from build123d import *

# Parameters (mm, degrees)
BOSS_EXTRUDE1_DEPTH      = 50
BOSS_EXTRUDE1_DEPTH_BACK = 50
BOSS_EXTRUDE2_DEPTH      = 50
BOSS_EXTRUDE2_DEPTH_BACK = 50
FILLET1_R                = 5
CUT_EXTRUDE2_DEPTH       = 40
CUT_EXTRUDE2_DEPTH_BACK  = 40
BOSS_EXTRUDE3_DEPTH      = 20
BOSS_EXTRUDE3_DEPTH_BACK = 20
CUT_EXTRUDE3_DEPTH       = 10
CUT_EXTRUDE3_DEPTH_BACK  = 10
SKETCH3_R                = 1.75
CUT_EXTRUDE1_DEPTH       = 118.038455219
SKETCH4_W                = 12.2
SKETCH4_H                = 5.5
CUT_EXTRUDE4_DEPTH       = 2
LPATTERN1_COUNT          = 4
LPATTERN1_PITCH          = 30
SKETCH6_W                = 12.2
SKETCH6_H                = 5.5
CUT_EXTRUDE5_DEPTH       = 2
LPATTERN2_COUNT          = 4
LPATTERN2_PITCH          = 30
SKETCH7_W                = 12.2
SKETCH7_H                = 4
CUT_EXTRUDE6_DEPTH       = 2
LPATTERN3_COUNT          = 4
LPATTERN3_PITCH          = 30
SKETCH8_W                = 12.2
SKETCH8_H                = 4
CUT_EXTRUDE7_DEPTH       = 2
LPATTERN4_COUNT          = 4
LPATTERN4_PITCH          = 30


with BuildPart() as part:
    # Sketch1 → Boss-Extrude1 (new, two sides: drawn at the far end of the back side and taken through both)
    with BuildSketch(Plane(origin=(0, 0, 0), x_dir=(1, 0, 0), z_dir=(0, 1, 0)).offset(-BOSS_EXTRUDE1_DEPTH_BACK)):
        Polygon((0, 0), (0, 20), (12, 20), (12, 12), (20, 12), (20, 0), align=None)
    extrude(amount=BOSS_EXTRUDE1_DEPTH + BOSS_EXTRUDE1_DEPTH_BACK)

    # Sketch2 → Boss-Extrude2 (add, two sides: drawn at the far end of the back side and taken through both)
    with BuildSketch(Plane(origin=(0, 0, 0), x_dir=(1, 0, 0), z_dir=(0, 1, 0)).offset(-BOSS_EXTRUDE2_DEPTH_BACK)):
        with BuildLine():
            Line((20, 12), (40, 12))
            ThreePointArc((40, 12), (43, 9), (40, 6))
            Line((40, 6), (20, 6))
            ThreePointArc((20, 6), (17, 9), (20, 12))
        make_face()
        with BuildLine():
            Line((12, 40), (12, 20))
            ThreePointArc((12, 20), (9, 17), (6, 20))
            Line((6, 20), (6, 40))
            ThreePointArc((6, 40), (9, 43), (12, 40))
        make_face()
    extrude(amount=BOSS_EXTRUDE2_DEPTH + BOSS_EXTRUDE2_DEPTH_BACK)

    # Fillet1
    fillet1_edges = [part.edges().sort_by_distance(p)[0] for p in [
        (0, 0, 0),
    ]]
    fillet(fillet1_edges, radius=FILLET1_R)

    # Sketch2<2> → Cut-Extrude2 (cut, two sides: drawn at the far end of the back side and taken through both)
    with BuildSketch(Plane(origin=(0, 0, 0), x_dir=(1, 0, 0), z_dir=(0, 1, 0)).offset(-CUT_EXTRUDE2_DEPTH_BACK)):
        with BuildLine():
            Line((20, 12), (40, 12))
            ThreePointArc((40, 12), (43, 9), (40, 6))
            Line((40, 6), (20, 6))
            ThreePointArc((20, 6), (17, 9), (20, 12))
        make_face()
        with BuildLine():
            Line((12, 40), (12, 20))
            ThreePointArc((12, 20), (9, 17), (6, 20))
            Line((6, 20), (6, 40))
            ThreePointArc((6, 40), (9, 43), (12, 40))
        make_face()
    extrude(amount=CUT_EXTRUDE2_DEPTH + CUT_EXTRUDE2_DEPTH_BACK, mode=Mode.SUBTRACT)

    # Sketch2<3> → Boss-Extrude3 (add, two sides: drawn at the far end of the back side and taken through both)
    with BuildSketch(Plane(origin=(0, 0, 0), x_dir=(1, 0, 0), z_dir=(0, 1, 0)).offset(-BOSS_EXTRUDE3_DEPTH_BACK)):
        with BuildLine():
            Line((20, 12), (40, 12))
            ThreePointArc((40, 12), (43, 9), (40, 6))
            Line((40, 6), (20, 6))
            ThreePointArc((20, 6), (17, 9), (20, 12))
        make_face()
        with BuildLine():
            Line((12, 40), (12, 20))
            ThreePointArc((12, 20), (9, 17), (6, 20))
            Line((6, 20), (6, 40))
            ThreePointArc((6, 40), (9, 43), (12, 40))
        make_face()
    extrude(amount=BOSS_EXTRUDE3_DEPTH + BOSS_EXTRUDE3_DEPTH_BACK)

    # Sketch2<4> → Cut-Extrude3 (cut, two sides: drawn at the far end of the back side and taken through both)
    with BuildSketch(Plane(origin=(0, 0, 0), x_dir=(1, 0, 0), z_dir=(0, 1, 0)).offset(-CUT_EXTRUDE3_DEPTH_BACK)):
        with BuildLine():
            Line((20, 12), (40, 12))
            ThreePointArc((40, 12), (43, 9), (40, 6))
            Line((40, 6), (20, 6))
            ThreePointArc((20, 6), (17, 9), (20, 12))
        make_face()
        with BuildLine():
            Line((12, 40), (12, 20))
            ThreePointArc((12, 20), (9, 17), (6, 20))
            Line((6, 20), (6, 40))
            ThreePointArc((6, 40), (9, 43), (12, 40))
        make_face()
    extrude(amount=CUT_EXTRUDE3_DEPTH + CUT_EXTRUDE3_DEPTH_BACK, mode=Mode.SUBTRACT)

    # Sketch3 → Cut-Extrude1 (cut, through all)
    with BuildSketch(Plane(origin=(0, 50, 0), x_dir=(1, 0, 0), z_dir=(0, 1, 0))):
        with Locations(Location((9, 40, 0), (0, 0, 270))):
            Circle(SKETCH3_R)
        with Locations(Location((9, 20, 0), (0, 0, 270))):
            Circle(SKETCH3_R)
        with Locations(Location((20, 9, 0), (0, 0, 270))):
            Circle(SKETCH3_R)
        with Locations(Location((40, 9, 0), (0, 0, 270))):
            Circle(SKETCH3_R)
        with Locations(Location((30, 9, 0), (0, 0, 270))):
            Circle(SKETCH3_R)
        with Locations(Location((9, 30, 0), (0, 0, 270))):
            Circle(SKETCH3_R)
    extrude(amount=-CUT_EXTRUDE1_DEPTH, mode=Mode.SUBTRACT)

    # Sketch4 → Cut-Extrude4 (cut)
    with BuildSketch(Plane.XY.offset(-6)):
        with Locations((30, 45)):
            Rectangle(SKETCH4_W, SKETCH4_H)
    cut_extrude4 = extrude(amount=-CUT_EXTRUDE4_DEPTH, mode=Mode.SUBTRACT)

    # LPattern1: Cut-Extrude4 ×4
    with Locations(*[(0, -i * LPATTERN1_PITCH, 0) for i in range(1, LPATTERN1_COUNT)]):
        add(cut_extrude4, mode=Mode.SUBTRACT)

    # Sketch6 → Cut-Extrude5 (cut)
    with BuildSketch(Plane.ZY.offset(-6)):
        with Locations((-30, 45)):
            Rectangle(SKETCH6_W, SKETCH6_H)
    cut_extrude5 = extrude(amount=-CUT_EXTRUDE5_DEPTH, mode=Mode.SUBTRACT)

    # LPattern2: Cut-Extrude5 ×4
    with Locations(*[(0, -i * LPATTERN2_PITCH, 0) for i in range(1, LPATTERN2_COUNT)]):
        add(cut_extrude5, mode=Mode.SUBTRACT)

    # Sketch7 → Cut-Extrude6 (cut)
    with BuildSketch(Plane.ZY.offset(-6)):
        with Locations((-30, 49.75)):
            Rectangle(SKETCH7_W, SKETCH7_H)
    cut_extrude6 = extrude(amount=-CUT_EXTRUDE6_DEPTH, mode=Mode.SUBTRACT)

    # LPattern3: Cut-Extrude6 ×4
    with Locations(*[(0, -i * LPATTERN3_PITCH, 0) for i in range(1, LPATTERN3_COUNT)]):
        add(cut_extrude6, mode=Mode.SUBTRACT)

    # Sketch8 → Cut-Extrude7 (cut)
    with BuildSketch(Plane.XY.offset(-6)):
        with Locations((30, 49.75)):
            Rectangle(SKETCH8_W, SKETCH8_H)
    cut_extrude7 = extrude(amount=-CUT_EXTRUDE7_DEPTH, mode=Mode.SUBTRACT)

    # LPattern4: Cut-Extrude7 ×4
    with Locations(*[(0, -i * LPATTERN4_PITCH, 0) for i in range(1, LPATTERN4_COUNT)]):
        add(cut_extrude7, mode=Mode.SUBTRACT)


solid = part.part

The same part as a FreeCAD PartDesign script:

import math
import FreeCAD as App
import Part
import Sketcher

V = App.Vector
Q = App.Units.Quantity


def edges_at(feature, points):
    """Names of the edges that pass closest to the given points."""
    edges = feature.Shape.Edges
    near = lambda p: min(range(len(edges)), key=lambda i: edges[i].distToShape(Part.Vertex(*p))[0])
    return sorted({f"Edge{near(p) + 1}" for p in points})


def add_polygon(sketch, points):
    """Adds a closed chain of lines whose ends are joined by coincident constraints."""
    first, n = sketch.GeometryCount, len(points)
    for a, b in zip(points, points[1:] + points[:1]):
        sketch.addGeometry(Part.LineSegment(App.Vector(*a, 0), App.Vector(*b, 0)), False)
    for i in range(n):
        sketch.addConstraint(Sketcher.Constraint("Coincident", first + i, 2, first + (i + 1) % n, 1))

doc = App.newDocument("Part")
body = doc.addObject("PartDesign::Body", "Body")

sketch1 = body.newObject("Sketcher::SketchObject", "Sketch")
sketch1.AttachmentSupport = (doc.getObject("XZ_Plane"), [""])
sketch1.MapMode = "FlatFace"
add_polygon(sketch1, [(0, -20), (0, 0), (20, 0), (20, -12), (12, -12), (12, -20)])
sketch1.addConstraint([
    Sketcher.Constraint("Vertical", 0),
    Sketcher.Constraint("Horizontal", 1),
    Sketcher.Constraint("Vertical", 2),
    Sketcher.Constraint("Horizontal", 3),
    Sketcher.Constraint("Vertical", 4),
    Sketcher.Constraint("Horizontal", 5),
    Sketcher.Constraint("Coincident", 0, 2, -1, 1),
    Sketcher.Constraint("Equal", 1, 0),
    Sketcher.Constraint("Equal", 5, 2),
    Sketcher.Constraint("DistanceX", 1, 1, 1, 2, Q("20 mm")),
    Sketcher.Constraint("DistanceX", 3, 2, 3, 1, Q("8 mm")),
])
pad1 = body.newObject("PartDesign::Pad", "Pad")
pad1.Profile = sketch1
pad1.Type = "TwoLengths"
pad1.Length = 50
pad1.Length2 = 50
pad1.Reversed = True

sketch2 = body.newObject("Sketcher::SketchObject", "Sketch001")
sketch2.AttachmentSupport = (doc.getObject("XZ_Plane"), [""])
sketch2.MapMode = "FlatFace"
sketch2.addGeometry([
    Part.LineSegment(V(40, -12, 0), V(20, -12, 0)),
    Part.ArcOfCircle(Part.Circle(V(20, -9, 0), V(0, 0, 1), 3), math.radians(90), math.radians(270)),
    Part.LineSegment(V(20, -6, 0), V(40, -6, 0)),
    Part.ArcOfCircle(Part.Circle(V(40, -9, 0), V(0, 0, 1), 3), math.radians(-90), math.radians(90)),
    Part.LineSegment(V(12, -20, 0), V(12, -40, 0)),
    Part.ArcOfCircle(Part.Circle(V(9, -40, 0), V(0, 0, 1), 3), math.radians(180), math.radians(360)),
    Part.LineSegment(V(6, -40, 0), V(6, -20, 0)),
    Part.ArcOfCircle(Part.Circle(V(9, -20, 0), V(0, 0, 1), 3), math.radians(0), math.radians(180)),
], False)
sketch2.addConstraint([
    Sketcher.Constraint("Tangent", 0, 2, 1, 2),
    Sketcher.Constraint("Tangent", 1, 1, 2, 1),
    Sketcher.Constraint("Tangent", 2, 2, 3, 2),
    Sketcher.Constraint("Tangent", 3, 1, 0, 1),
    Sketcher.Constraint("Tangent", 4, 2, 5, 2),
    Sketcher.Constraint("Tangent", 5, 1, 6, 1),
    Sketcher.Constraint("Tangent", 6, 2, 7, 2),
    Sketcher.Constraint("Tangent", 7, 1, 4, 1),
    Sketcher.Constraint("Horizontal", 0),
    Sketcher.Constraint("Horizontal", 2),
    Sketcher.Constraint("Vertical", 4),
    Sketcher.Constraint("Vertical", 6),
    Sketcher.Constraint("Equal", 3, 5),
    Sketcher.Constraint("Equal", 2, 4),
    Sketcher.Constraint("Radius", 1, Q("3 mm")),
    Sketcher.Constraint("DistanceX", 0, 2, 0, 1, Q("20 mm")),
    Sketcher.Constraint("DistanceX", -1, 1, 1, 3, Q("20 mm")),
    Sketcher.Constraint("DistanceY", 1, 3, -1, 1, Q("9 mm")),
    Sketcher.Constraint("DistanceX", -1, 1, 5, 3, Q("9 mm")),
    Sketcher.Constraint("DistanceY", 5, 3, -1, 1, Q("40 mm")),
])
pad2 = body.newObject("PartDesign::Pad", "Pad001")
pad2.Profile = sketch2
pad2.Type = "TwoLengths"
pad2.Length = 50
pad2.Length2 = 50
pad2.Reversed = True
doc.recompute()

fillet = body.newObject("PartDesign::Fillet", "Fillet")
fillet.Base = (pad2, edges_at(pad2, [(0, 0, 0)]))
fillet.Radius = 5

sketch3 = body.newObject("Sketcher::SketchObject", "Sketch002")
sketch3.AttachmentSupport = (doc.getObject("XZ_Plane"), [""])
sketch3.MapMode = "FlatFace"
sketch3.addGeometry([
    Part.LineSegment(V(40, -12, 0), V(20, -12, 0)),
    Part.ArcOfCircle(Part.Circle(V(20, -9, 0), V(0, 0, 1), 3), math.radians(90), math.radians(270)),
    Part.LineSegment(V(20, -6, 0), V(40, -6, 0)),
    Part.ArcOfCircle(Part.Circle(V(40, -9, 0), V(0, 0, 1), 3), math.radians(-90), math.radians(90)),
    Part.LineSegment(V(12, -20, 0), V(12, -40, 0)),
    Part.ArcOfCircle(Part.Circle(V(9, -40, 0), V(0, 0, 1), 3), math.radians(180), math.radians(360)),
    Part.LineSegment(V(6, -40, 0), V(6, -20, 0)),
    Part.ArcOfCircle(Part.Circle(V(9, -20, 0), V(0, 0, 1), 3), math.radians(0), math.radians(180)),
], False)
sketch3.addConstraint([
    Sketcher.Constraint("Tangent", 0, 2, 1, 2),
    Sketcher.Constraint("Tangent", 1, 1, 2, 1),
    Sketcher.Constraint("Tangent", 2, 2, 3, 2),
    Sketcher.Constraint("Tangent", 3, 1, 0, 1),
    Sketcher.Constraint("Tangent", 4, 2, 5, 2),
    Sketcher.Constraint("Tangent", 5, 1, 6, 1),
    Sketcher.Constraint("Tangent", 6, 2, 7, 2),
    Sketcher.Constraint("Tangent", 7, 1, 4, 1),
    Sketcher.Constraint("Horizontal", 0),
    Sketcher.Constraint("Horizontal", 2),
    Sketcher.Constraint("Vertical", 4),
    Sketcher.Constraint("Vertical", 6),
    Sketcher.Constraint("Equal", 3, 5),
    Sketcher.Constraint("Equal", 2, 4),
    Sketcher.Constraint("Radius", 1, Q("3 mm")),
    Sketcher.Constraint("DistanceX", 0, 2, 0, 1, Q("20 mm")),
    Sketcher.Constraint("DistanceX", -1, 1, 1, 3, Q("20 mm")),
    Sketcher.Constraint("DistanceY", 1, 3, -1, 1, Q("9 mm")),
    Sketcher.Constraint("DistanceX", -1, 1, 5, 3, Q("9 mm")),
    Sketcher.Constraint("DistanceY", 5, 3, -1, 1, Q("40 mm")),
])
pocket1 = body.newObject("PartDesign::Pocket", "Pocket")
pocket1.Profile = sketch3
pocket1.Type = "TwoLengths"
pocket1.Length = 40
pocket1.Length2 = 40

sketch4 = body.newObject("Sketcher::SketchObject", "Sketch003")
sketch4.AttachmentSupport = (doc.getObject("XZ_Plane"), [""])
sketch4.MapMode = "FlatFace"
sketch4.addGeometry([
    Part.LineSegment(V(40, -12, 0), V(20, -12, 0)),
    Part.ArcOfCircle(Part.Circle(V(20, -9, 0), V(0, 0, 1), 3), math.radians(90), math.radians(270)),
    Part.LineSegment(V(20, -6, 0), V(40, -6, 0)),
    Part.ArcOfCircle(Part.Circle(V(40, -9, 0), V(0, 0, 1), 3), math.radians(-90), math.radians(90)),
    Part.LineSegment(V(12, -20, 0), V(12, -40, 0)),
    Part.ArcOfCircle(Part.Circle(V(9, -40, 0), V(0, 0, 1), 3), math.radians(180), math.radians(360)),
    Part.LineSegment(V(6, -40, 0), V(6, -20, 0)),
    Part.ArcOfCircle(Part.Circle(V(9, -20, 0), V(0, 0, 1), 3), math.radians(0), math.radians(180)),
], False)
sketch4.addConstraint([
    Sketcher.Constraint("Tangent", 0, 2, 1, 2),
    Sketcher.Constraint("Tangent", 1, 1, 2, 1),
    Sketcher.Constraint("Tangent", 2, 2, 3, 2),
    Sketcher.Constraint("Tangent", 3, 1, 0, 1),
    Sketcher.Constraint("Tangent", 4, 2, 5, 2),
    Sketcher.Constraint("Tangent", 5, 1, 6, 1),
    Sketcher.Constraint("Tangent", 6, 2, 7, 2),
    Sketcher.Constraint("Tangent", 7, 1, 4, 1),
    Sketcher.Constraint("Horizontal", 0),
    Sketcher.Constraint("Horizontal", 2),
    Sketcher.Constraint("Vertical", 4),
    Sketcher.Constraint("Vertical", 6),
    Sketcher.Constraint("Equal", 3, 5),
    Sketcher.Constraint("Equal", 2, 4),
    Sketcher.Constraint("Radius", 1, Q("3 mm")),
    Sketcher.Constraint("DistanceX", 0, 2, 0, 1, Q("20 mm")),
    Sketcher.Constraint("DistanceX", -1, 1, 1, 3, Q("20 mm")),
    Sketcher.Constraint("DistanceY", 1, 3, -1, 1, Q("9 mm")),
    Sketcher.Constraint("DistanceX", -1, 1, 5, 3, Q("9 mm")),
    Sketcher.Constraint("DistanceY", 5, 3, -1, 1, Q("40 mm")),
])
pad3 = body.newObject("PartDesign::Pad", "Pad002")
pad3.Profile = sketch4
pad3.Type = "TwoLengths"
pad3.Length = 20
pad3.Length2 = 20
pad3.Reversed = True

sketch5 = body.newObject("Sketcher::SketchObject", "Sketch004")
sketch5.AttachmentSupport = (doc.getObject("XZ_Plane"), [""])
sketch5.MapMode = "FlatFace"
sketch5.addGeometry([
    Part.LineSegment(V(40, -12, 0), V(20, -12, 0)),
    Part.ArcOfCircle(Part.Circle(V(20, -9, 0), V(0, 0, 1), 3), math.radians(90), math.radians(270)),
    Part.LineSegment(V(20, -6, 0), V(40, -6, 0)),
    Part.ArcOfCircle(Part.Circle(V(40, -9, 0), V(0, 0, 1), 3), math.radians(-90), math.radians(90)),
    Part.LineSegment(V(12, -20, 0), V(12, -40, 0)),
    Part.ArcOfCircle(Part.Circle(V(9, -40, 0), V(0, 0, 1), 3), math.radians(180), math.radians(360)),
    Part.LineSegment(V(6, -40, 0), V(6, -20, 0)),
    Part.ArcOfCircle(Part.Circle(V(9, -20, 0), V(0, 0, 1), 3), math.radians(0), math.radians(180)),
], False)
sketch5.addConstraint([
    Sketcher.Constraint("Tangent", 0, 2, 1, 2),
    Sketcher.Constraint("Tangent", 1, 1, 2, 1),
    Sketcher.Constraint("Tangent", 2, 2, 3, 2),
    Sketcher.Constraint("Tangent", 3, 1, 0, 1),
    Sketcher.Constraint("Tangent", 4, 2, 5, 2),
    Sketcher.Constraint("Tangent", 5, 1, 6, 1),
    Sketcher.Constraint("Tangent", 6, 2, 7, 2),
    Sketcher.Constraint("Tangent", 7, 1, 4, 1),
    Sketcher.Constraint("Horizontal", 0),
    Sketcher.Constraint("Horizontal", 2),
    Sketcher.Constraint("Vertical", 4),
    Sketcher.Constraint("Vertical", 6),
    Sketcher.Constraint("Equal", 3, 5),
    Sketcher.Constraint("Equal", 2, 4),
    Sketcher.Constraint("Radius", 1, Q("3 mm")),
    Sketcher.Constraint("DistanceX", 0, 2, 0, 1, Q("20 mm")),
    Sketcher.Constraint("DistanceX", -1, 1, 1, 3, Q("20 mm")),
    Sketcher.Constraint("DistanceY", 1, 3, -1, 1, Q("9 mm")),
    Sketcher.Constraint("DistanceX", -1, 1, 5, 3, Q("9 mm")),
    Sketcher.Constraint("DistanceY", 5, 3, -1, 1, Q("40 mm")),
])
pocket2 = body.newObject("PartDesign::Pocket", "Pocket001")
pocket2.Profile = sketch5
pocket2.Type = "TwoLengths"
pocket2.Length = 10
pocket2.Length2 = 10

sketch6 = body.newObject("Sketcher::SketchObject", "Sketch005")
sketch6.AttachmentSupport = (doc.getObject("XZ_Plane"), [""])
sketch6.MapMode = "FlatFace"
sketch6.AttachmentOffset = App.Placement(V(0, 0, -50), App.Rotation())
sketch6.addGeometry([
    Part.Circle(V(9, -40, 0), V(0, 0, 1), 1.75),
    Part.Circle(V(9, -20, 0), V(0, 0, 1), 1.75),
    Part.Circle(V(20, -9, 0), V(0, 0, 1), 1.75),
    Part.Circle(V(40, -9, 0), V(0, 0, 1), 1.75),
    Part.Circle(V(30, -9, 0), V(0, 0, 1), 1.75),
    Part.Circle(V(9, -30, 0), V(0, 0, 1), 1.75),
], False)
sketch6.addConstraint([
    Sketcher.Constraint("Equal", 0, 1),
    Sketcher.Constraint("Equal", 1, 2),
    Sketcher.Constraint("Equal", 2, 3),
    Sketcher.Constraint("Equal", 3, 4),
    Sketcher.Constraint("Equal", 4, 5),
    Sketcher.Constraint("Horizontal", 2, 3, 3, 3),
    Sketcher.Constraint("Horizontal", 3, 3, 4, 3),
    Sketcher.Constraint("Vertical", 0, 3, 1, 3),
    Sketcher.Constraint("Vertical", 1, 3, 5, 3),
    Sketcher.Constraint("Diameter", 0, Q("3.5 mm")),
    Sketcher.Constraint("DistanceX", -1, 1, 0, 3, Q("9 mm")),
    Sketcher.Constraint("DistanceY", 0, 3, -1, 1, Q("40 mm")),
    Sketcher.Constraint("DistanceY", 1, 3, -1, 1, Q("20 mm")),
    Sketcher.Constraint("DistanceX", -1, 1, 2, 3, Q("20 mm")),
    Sketcher.Constraint("DistanceY", 2, 3, -1, 1, Q("9 mm")),
    Sketcher.Constraint("DistanceX", -1, 1, 3, 3, Q("40 mm")),
    Sketcher.Constraint("DistanceX", -1, 1, 4, 3, Q("30 mm")),
    Sketcher.Constraint("DistanceY", 5, 3, -1, 1, Q("30 mm")),
])
pocket3 = body.newObject("PartDesign::Pocket", "Pocket002")
pocket3.Profile = sketch6
pocket3.Type = "ThroughAll"
pocket3.Reversed = True

sketch7 = body.newObject("Sketcher::SketchObject", "Sketch006")
sketch7.AttachmentSupport = (doc.getObject("XY_Plane"), [""])
sketch7.MapMode = "FlatFace"
sketch7.AttachmentOffset = App.Placement(V(0, 0, -6), App.Rotation())
add_polygon(sketch7, [(23.9, 47.75), (23.9, 42.25), (36.1, 42.25), (36.1, 47.75)])
sketch7.addConstraint([
    Sketcher.Constraint("Vertical", 0),
    Sketcher.Constraint("Horizontal", 1),
    Sketcher.Constraint("Vertical", 2),
    Sketcher.Constraint("Horizontal", 3),
    Sketcher.Constraint("DistanceX", 1, 1, 1, 2, Q("12.2 mm")),
    Sketcher.Constraint("DistanceY", 0, 2, 0, 1, Q("5.5 mm")),
    Sketcher.Constraint("DistanceX", -1, 1, 0, 2, Q("23.9 mm")),
    Sketcher.Constraint("DistanceY", -1, 1, 0, 2, Q("42.25 mm")),
])
pocket4 = body.newObject("PartDesign::Pocket", "Pocket003")
pocket4.Profile = sketch7
pocket4.Length = 2
doc.recompute()

linearpattern = body.newObject("PartDesign::LinearPattern", "LinearPattern")
linearpattern.Originals = [pocket4]
linearpattern.Direction = (doc.getObject("Y_Axis"), [""])
linearpattern.Mode = "offset"
linearpattern.Offset = 30
linearpattern.Occurrences = 4
linearpattern.Reversed = True
body.Tip = linearpattern

sketch8 = body.newObject("Sketcher::SketchObject", "Sketch007")
sketch8.AttachmentSupport = (doc.getObject("YZ_Plane"), [""])
sketch8.MapMode = "FlatFace"
sketch8.AttachmentOffset = App.Placement(V(0, 0, 6), App.Rotation())
add_polygon(sketch8, [(47.75, -36.1), (42.25, -36.1), (42.25, -23.9), (47.75, -23.9)])
sketch8.addConstraint([
    Sketcher.Constraint("Horizontal", 0),
    Sketcher.Constraint("Vertical", 1),
    Sketcher.Constraint("Horizontal", 2),
    Sketcher.Constraint("Vertical", 3),
    Sketcher.Constraint("DistanceX", 0, 2, 0, 1, Q("5.5 mm")),
    Sketcher.Constraint("DistanceY", 1, 1, 1, 2, Q("12.2 mm")),
    Sketcher.Constraint("DistanceY", 0, 2, -1, 1, Q("36.1 mm")),
    Sketcher.Constraint("DistanceX", -1, 1, 0, 2, Q("42.25 mm")),
])
pocket5 = body.newObject("PartDesign::Pocket", "Pocket004")
pocket5.Profile = sketch8
pocket5.Length = 2
pocket5.Reversed = True
doc.recompute()

linearpattern2 = body.newObject("PartDesign::LinearPattern", "LinearPattern001")
linearpattern2.Originals = [pocket5]
linearpattern2.Direction = (doc.getObject("Y_Axis"), [""])
linearpattern2.Mode = "offset"
linearpattern2.Offset = 30
linearpattern2.Occurrences = 4
linearpattern2.Reversed = True
body.Tip = linearpattern2

sketch9 = body.newObject("Sketcher::SketchObject", "Sketch008")
sketch9.AttachmentSupport = (doc.getObject("YZ_Plane"), [""])
sketch9.MapMode = "FlatFace"
sketch9.AttachmentOffset = App.Placement(V(0, 0, 6), App.Rotation())
add_polygon(sketch9, [(51.75, -36.1), (47.75, -36.1), (47.75, -23.9), (51.75, -23.9)])
sketch9.addConstraint([
    Sketcher.Constraint("Horizontal", 0),
    Sketcher.Constraint("Vertical", 1),
    Sketcher.Constraint("Horizontal", 2),
    Sketcher.Constraint("Vertical", 3),
    Sketcher.Constraint("DistanceX", 0, 2, 0, 1, Q("4 mm")),
    Sketcher.Constraint("DistanceY", 1, 1, 1, 2, Q("12.2 mm")),
    Sketcher.Constraint("DistanceY", 0, 2, -1, 1, Q("36.1 mm")),
    Sketcher.Constraint("DistanceX", -1, 1, 0, 2, Q("47.75 mm")),
])
pocket6 = body.newObject("PartDesign::Pocket", "Pocket005")
pocket6.Profile = sketch9
pocket6.Length = 2
pocket6.Reversed = True
doc.recompute()

linearpattern3 = body.newObject("PartDesign::LinearPattern", "LinearPattern002")
linearpattern3.Originals = [pocket6]
linearpattern3.Direction = (doc.getObject("Y_Axis"), [""])
linearpattern3.Mode = "offset"
linearpattern3.Offset = 30
linearpattern3.Occurrences = 4
linearpattern3.Reversed = True
body.Tip = linearpattern3

sketch10 = body.newObject("Sketcher::SketchObject", "Sketch009")
sketch10.AttachmentSupport = (doc.getObject("XY_Plane"), [""])
sketch10.MapMode = "FlatFace"
sketch10.AttachmentOffset = App.Placement(V(0, 0, -6), App.Rotation())
add_polygon(sketch10, [(23.9, 51.75), (23.9, 47.75), (36.1, 47.75), (36.1, 51.75)])
sketch10.addConstraint([
    Sketcher.Constraint("Vertical", 0),
    Sketcher.Constraint("Horizontal", 1),
    Sketcher.Constraint("Vertical", 2),
    Sketcher.Constraint("Horizontal", 3),
    Sketcher.Constraint("DistanceY", 0, 2, 0, 1, Q("4 mm")),
    Sketcher.Constraint("DistanceX", 1, 1, 1, 2, Q("12.2 mm")),
    Sketcher.Constraint("DistanceX", -1, 1, 0, 2, Q("23.9 mm")),
    Sketcher.Constraint("DistanceY", -1, 1, 0, 2, Q("47.75 mm")),
])
pocket7 = body.newObject("PartDesign::Pocket", "Pocket006")
pocket7.Profile = sketch10
pocket7.Length = 2
doc.recompute()

linearpattern4 = body.newObject("PartDesign::LinearPattern", "LinearPattern003")
linearpattern4.Originals = [pocket7]
linearpattern4.Direction = (doc.getObject("Y_Axis"), [""])
linearpattern4.Mode = "offset"
linearpattern4.Offset = 30
linearpattern4.Occurrences = 4
linearpattern4.Reversed = True
body.Tip = linearpattern4

doc.recompute()
